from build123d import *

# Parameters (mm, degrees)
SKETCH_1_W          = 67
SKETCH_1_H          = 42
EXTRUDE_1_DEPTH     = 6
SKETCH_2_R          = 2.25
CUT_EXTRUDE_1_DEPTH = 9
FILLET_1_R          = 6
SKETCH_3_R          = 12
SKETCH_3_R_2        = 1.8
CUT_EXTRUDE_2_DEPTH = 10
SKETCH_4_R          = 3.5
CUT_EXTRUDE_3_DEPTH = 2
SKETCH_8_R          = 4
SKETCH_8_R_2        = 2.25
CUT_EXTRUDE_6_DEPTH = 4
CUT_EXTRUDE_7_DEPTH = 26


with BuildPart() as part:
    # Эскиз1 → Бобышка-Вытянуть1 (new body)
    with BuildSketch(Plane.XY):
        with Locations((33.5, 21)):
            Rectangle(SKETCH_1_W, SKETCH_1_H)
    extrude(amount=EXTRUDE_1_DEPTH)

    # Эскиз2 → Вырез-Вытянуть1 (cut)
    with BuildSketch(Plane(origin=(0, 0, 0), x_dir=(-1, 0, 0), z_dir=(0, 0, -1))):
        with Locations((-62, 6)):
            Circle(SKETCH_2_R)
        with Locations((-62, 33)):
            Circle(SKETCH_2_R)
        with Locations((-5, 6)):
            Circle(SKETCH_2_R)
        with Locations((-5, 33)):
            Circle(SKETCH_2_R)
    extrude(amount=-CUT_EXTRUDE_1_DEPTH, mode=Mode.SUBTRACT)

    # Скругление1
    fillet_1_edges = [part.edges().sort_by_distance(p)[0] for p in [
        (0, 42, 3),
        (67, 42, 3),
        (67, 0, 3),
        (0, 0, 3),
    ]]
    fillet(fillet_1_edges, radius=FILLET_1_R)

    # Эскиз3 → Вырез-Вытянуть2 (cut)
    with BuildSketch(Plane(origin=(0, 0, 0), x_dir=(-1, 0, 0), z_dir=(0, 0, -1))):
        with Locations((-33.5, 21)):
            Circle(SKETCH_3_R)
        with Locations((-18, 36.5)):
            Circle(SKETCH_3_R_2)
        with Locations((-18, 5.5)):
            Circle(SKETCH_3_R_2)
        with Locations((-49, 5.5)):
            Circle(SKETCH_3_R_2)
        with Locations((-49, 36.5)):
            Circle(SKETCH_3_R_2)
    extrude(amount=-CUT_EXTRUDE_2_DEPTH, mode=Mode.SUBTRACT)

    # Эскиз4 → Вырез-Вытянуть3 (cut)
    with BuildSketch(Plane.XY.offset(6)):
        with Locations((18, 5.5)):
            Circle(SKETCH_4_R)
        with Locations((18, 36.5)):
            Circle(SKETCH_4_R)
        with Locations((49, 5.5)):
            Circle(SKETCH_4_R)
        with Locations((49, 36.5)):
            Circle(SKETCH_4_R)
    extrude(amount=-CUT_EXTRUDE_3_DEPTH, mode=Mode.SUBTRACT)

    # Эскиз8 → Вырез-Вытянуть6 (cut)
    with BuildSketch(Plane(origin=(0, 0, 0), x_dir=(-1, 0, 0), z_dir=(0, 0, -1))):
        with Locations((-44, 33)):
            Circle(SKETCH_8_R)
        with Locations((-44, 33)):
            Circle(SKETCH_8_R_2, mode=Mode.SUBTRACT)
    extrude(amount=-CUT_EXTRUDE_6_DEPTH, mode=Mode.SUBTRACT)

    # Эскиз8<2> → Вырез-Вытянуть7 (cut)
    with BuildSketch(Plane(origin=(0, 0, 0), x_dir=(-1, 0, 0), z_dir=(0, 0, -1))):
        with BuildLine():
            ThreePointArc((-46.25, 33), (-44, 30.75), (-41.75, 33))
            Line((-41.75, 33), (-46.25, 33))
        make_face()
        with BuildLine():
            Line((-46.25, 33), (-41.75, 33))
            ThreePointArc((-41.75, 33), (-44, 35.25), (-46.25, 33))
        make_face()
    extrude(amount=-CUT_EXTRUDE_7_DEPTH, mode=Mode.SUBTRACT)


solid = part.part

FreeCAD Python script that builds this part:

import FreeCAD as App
import Part
import Sketcher
from FreeCAD import Vector


def edges_at(feature, points):
    """Names of the edges that pass closest to the given points."""
    edges = feature.Shape.Edges
    near = lambda p: min(range(len(edges)), key=lambda i: edges[i].distToShape(Part.Vertex(*p))[0])
    return sorted({f"Edge{near(p) + 1}" for p in points})


def add_polygon(sketch, points):
    """Adds a closed chain of lines whose ends are joined by coincident constraints."""
    first, n = sketch.GeometryCount, len(points)
    for a, b in zip(points, points[1:] + points[:1]):
        sketch.addGeometry(Part.LineSegment(App.Vector(*a, 0), App.Vector(*b, 0)), False)
    for i in range(n):
        sketch.addConstraint(Sketcher.Constraint("Coincident", first + i, 2, first + (i + 1) % n, 1))

doc = App.newDocument("Part")
body = doc.addObject("PartDesign::Body", "Body")

sketch1 = doc.addObject("Sketcher::SketchObject", "Sketch")
body.addObject(sketch1)
sketch1.AttachmentSupport = (doc.XY_Plane, [""])
sketch1.MapMode = "FlatFace"
add_polygon(sketch1, [(0, 42), (0, 0), (67, 0), (67, 42)])
sketch1.addConstraint([
    Sketcher.Constraint("Vertical", 0),
    Sketcher.Constraint("Horizontal", 1),
    Sketcher.Constraint("Vertical", 2),
    Sketcher.Constraint("Horizontal", 3),
    Sketcher.Constraint("Coincident", 0, 2, -1, 1),
    Sketcher.Constraint("DistanceX", 1, 1, 1, 2, 67.0),
    Sketcher.Constraint("DistanceY", 0, 2, 0, 1, 42.0),
])
pad1 = doc.addObject("PartDesign::Pad", "Pad")
body.addObject(pad1)
pad1.Profile = sketch1
pad1.Length = 6

sketch2 = doc.addObject("Sketcher::SketchObject", "Sketch001")
body.addObject(sketch2)
sketch2.AttachmentSupport = (doc.XY_Plane, [""])
sketch2.MapMode = "FlatFace"
sketch2.addGeometry([
    Part.Circle(Vector(62, 6, 0), Vector(0, 0, 1), 2.2),
    Part.Circle(Vector(62, 33, 0), Vector(0, 0, 1), 2.2),
    Part.Circle(Vector(5, 6, 0), Vector(0, 0, 1), 2.2),
    Part.Circle(Vector(5, 33, 0), Vector(0, 0, 1), 2.2),
], False)
sketch2.addConstraint([
    Sketcher.Constraint("Equal", 0, 1),
    Sketcher.Constraint("Equal", 1, 2),
    Sketcher.Constraint("Equal", 2, 3),
    Sketcher.Constraint("Horizontal", 0, 3, 2, 3),
    Sketcher.Constraint("Horizontal", 1, 3, 3, 3),
    Sketcher.Constraint("Vertical", 0, 3, 1, 3),
    Sketcher.Constraint("Vertical", 2, 3, 3, 3),
    Sketcher.Constraint("Diameter", 0, 4.5),
    Sketcher.Constraint("DistanceX", -1, 1, 0, 3, 62.0),
    Sketcher.Constraint("DistanceY", -1, 1, 0, 3, 6.0),
    Sketcher.Constraint("DistanceY", -1, 1, 1, 3, 33.0),
    Sketcher.Constraint("DistanceX", -1, 1, 2, 3, 5.0),
])
pocket1 = doc.addObject("PartDesign::Pocket", "Pocket")
body.addObject(pocket1)
pocket1.Profile = sketch2
pocket1.Length = 9
pocket1.Reversed = True
doc.recompute()

fillet = doc.addObject("PartDesign::Fillet", "Fillet")
body.addObject(fillet)
fillet.Base = (pocket1, edges_at(pocket1, [
    (0, 42, 3),
    (67, 42, 3),
    (67, 0, 3),
    (0, 0, 3),
]))
fillet.Radius = 6

sketch3 = doc.addObject("Sketcher::SketchObject", "Sketch002")
body.addObject(sketch3)
sketch3.AttachmentSupport = (doc.XY_Plane, [""])
sketch3.MapMode = "FlatFace"
sketch3.addGeometry([
    Part.Circle(Vector(33.5, 21, 0), Vector(0, 0, 1), 12),
    Part.Circle(Vector(18, 36.5, 0), Vector(0, 0, 1), 1.8),
    Part.Circle(Vector(18, 5.5, 0), Vector(0, 0, 1), 1.8),
    Part.Circle(Vector(49, 5.5, 0), Vector(0, 0, 1), 1.8),
    Part.Circle(Vector(49, 36.5, 0), Vector(0, 0, 1), 1.8),
], False)
sketch3.addConstraint([
    Sketcher.Constraint("Equal", 1, 2),
    Sketcher.Constraint("Equal", 2, 3),
    Sketcher.Constraint("Equal", 3, 4),
    Sketcher.Constraint("Horizontal", 2, 3, 3, 3),
    Sketcher.Constraint("Horizontal", 1, 3, 4, 3),
    Sketcher.Constraint("Vertical", 1, 3, 2, 3),
    Sketcher.Constraint("Vertical", 3, 3, 4, 3),
    Sketcher.Constraint("Diameter", 0, 24.0),
    Sketcher.Constraint("Diameter", 1, 3.6),
    Sketcher.Constraint("DistanceY", -1, 1, 0, 3, 21.0),
    Sketcher.Constraint("DistanceX", -1, 1, 1, 3, 18.0),
    Sketcher.Constraint("DistanceX", -1, 1, 3, 3, 49.0),
    Sketcher.Constraint("DistanceY", 2, 3, 1, 3, 31.0),
    Sketcher.Constraint("DistanceX", -1, 1, 0, 3, 33.5),
    Sketcher.Constraint("DistanceY", -1, 1, 1, 3, 36.5),
])
pocket2 = doc.addObject("PartDesign::Pocket", "Pocket001")
body.addObject(pocket2)
pocket2.Profile = sketch3
pocket2.Length = 10
pocket2.Reversed = True

sketch4 = doc.addObject("Sketcher::SketchObject", "Sketch003")
body.addObject(sketch4)
sketch4.AttachmentSupport = (doc.XY_Plane, [""])
sketch4.MapMode = "FlatFace"
sketch4.AttachmentOffset = App.Placement(Vector(0, 0, 6), App.Rotation())
sketch4.addGeometry([
    Part.Circle(Vector(18, 5.5, 0), Vector(0, 0, 1), 3.5),
    Part.Circle(Vector(18, 36.5, 0), Vector(0, 0, 1), 3.5),
    Part.Circle(Vector(49, 5.5, 0), Vector(0, 0, 1), 3.5),
    Part.Circle(Vector(49, 36.5, 0), Vector(0, 0, 1), 3.5),
], False)
sketch4.addConstraint([
    Sketcher.Constraint("Equal", 0, 1),
    Sketcher.Constraint("Equal", 1, 2),
    Sketcher.Constraint("Equal", 2, 3),
    Sketcher.Constraint("Horizontal", 0, 3, 2, 3),
    Sketcher.Constraint("Horizontal", 1, 3, 3, 3),
    Sketcher.Constraint("Vertical", 0, 3, 1, 3),
    Sketcher.Constraint("Vertical", 2, 3, 3, 3),
    Sketcher.Constraint("Diameter", 0, 7.0),
    Sketcher.Constraint("DistanceX", -1, 1, 0, 3, 18.0),
    Sketcher.Constraint("DistanceX", -1, 1, 2, 3, 49.0),
    Sketcher.Constraint("DistanceY", 0, 3, 1, 3, 31.0),
    Sketcher.Constraint("DistanceY", -1, 1, 0, 3, 5.5),
])
pocket3 = doc.addObject("PartDesign::Pocket", "Pocket002")
body.addObject(pocket3)
pocket3.Profile = sketch4
pocket3.Length = 2

sketch5 = doc.addObject("Sketcher::SketchObject", "Sketch004")
body.addObject(sketch5)
sketch5.AttachmentSupport = (doc.XY_Plane, [""])
sketch5.MapMode = "FlatFace"
sketch5.addGeometry([
    Part.Circle(Vector(44, 33, 0), Vector(0, 0, 1), 4),
    Part.Circle(Vector(44, 33, 0), Vector(0, 0, 1), 2.2),
], False)
sketch5.addConstraint([
    Sketcher.Constraint("Coincident", 1, 3, 0, 3),
    Sketcher.Constraint("Diameter", 0, 8.0),
    Sketcher.Constraint("Diameter", 1, 4.5),
    Sketcher.Constraint("DistanceX", -1, 1, 0, 3, 44.0),
    Sketcher.Constraint("DistanceY", -1, 1, 0, 3, 33.0),
])
pocket4 = doc.addObject("PartDesign::Pocket", "Pocket003")
body.addObject(pocket4)
pocket4.Profile = sketch5
pocket4.Length = 4
pocket4.Reversed = True

sketch6 = doc.addObject("Sketcher::SketchObject", "Sketch005")
body.addObject(sketch6)
sketch6.AttachmentSupport = (doc.XY_Plane, [""])
sketch6.MapMode = "FlatFace"
sketch6.addGeometry(Part.Circle(Vector(44, 33, 0), Vector(0, 0, 1), 2.2), False)
sketch6.addConstraint([
    Sketcher.Constraint("Diameter", 0, 4.5),
    Sketcher.Constraint("DistanceX", -1, 1, 0, 3, 44.0),
    Sketcher.Constraint("DistanceY", -1, 1, 0, 3, 33.0),
])
pocket5 = doc.addObject("PartDesign::Pocket", "Pocket004")
body.addObject(pocket5)
pocket5.Profile = sketch6
pocket5.Length = 26
pocket5.Reversed = True

doc.recompute()
